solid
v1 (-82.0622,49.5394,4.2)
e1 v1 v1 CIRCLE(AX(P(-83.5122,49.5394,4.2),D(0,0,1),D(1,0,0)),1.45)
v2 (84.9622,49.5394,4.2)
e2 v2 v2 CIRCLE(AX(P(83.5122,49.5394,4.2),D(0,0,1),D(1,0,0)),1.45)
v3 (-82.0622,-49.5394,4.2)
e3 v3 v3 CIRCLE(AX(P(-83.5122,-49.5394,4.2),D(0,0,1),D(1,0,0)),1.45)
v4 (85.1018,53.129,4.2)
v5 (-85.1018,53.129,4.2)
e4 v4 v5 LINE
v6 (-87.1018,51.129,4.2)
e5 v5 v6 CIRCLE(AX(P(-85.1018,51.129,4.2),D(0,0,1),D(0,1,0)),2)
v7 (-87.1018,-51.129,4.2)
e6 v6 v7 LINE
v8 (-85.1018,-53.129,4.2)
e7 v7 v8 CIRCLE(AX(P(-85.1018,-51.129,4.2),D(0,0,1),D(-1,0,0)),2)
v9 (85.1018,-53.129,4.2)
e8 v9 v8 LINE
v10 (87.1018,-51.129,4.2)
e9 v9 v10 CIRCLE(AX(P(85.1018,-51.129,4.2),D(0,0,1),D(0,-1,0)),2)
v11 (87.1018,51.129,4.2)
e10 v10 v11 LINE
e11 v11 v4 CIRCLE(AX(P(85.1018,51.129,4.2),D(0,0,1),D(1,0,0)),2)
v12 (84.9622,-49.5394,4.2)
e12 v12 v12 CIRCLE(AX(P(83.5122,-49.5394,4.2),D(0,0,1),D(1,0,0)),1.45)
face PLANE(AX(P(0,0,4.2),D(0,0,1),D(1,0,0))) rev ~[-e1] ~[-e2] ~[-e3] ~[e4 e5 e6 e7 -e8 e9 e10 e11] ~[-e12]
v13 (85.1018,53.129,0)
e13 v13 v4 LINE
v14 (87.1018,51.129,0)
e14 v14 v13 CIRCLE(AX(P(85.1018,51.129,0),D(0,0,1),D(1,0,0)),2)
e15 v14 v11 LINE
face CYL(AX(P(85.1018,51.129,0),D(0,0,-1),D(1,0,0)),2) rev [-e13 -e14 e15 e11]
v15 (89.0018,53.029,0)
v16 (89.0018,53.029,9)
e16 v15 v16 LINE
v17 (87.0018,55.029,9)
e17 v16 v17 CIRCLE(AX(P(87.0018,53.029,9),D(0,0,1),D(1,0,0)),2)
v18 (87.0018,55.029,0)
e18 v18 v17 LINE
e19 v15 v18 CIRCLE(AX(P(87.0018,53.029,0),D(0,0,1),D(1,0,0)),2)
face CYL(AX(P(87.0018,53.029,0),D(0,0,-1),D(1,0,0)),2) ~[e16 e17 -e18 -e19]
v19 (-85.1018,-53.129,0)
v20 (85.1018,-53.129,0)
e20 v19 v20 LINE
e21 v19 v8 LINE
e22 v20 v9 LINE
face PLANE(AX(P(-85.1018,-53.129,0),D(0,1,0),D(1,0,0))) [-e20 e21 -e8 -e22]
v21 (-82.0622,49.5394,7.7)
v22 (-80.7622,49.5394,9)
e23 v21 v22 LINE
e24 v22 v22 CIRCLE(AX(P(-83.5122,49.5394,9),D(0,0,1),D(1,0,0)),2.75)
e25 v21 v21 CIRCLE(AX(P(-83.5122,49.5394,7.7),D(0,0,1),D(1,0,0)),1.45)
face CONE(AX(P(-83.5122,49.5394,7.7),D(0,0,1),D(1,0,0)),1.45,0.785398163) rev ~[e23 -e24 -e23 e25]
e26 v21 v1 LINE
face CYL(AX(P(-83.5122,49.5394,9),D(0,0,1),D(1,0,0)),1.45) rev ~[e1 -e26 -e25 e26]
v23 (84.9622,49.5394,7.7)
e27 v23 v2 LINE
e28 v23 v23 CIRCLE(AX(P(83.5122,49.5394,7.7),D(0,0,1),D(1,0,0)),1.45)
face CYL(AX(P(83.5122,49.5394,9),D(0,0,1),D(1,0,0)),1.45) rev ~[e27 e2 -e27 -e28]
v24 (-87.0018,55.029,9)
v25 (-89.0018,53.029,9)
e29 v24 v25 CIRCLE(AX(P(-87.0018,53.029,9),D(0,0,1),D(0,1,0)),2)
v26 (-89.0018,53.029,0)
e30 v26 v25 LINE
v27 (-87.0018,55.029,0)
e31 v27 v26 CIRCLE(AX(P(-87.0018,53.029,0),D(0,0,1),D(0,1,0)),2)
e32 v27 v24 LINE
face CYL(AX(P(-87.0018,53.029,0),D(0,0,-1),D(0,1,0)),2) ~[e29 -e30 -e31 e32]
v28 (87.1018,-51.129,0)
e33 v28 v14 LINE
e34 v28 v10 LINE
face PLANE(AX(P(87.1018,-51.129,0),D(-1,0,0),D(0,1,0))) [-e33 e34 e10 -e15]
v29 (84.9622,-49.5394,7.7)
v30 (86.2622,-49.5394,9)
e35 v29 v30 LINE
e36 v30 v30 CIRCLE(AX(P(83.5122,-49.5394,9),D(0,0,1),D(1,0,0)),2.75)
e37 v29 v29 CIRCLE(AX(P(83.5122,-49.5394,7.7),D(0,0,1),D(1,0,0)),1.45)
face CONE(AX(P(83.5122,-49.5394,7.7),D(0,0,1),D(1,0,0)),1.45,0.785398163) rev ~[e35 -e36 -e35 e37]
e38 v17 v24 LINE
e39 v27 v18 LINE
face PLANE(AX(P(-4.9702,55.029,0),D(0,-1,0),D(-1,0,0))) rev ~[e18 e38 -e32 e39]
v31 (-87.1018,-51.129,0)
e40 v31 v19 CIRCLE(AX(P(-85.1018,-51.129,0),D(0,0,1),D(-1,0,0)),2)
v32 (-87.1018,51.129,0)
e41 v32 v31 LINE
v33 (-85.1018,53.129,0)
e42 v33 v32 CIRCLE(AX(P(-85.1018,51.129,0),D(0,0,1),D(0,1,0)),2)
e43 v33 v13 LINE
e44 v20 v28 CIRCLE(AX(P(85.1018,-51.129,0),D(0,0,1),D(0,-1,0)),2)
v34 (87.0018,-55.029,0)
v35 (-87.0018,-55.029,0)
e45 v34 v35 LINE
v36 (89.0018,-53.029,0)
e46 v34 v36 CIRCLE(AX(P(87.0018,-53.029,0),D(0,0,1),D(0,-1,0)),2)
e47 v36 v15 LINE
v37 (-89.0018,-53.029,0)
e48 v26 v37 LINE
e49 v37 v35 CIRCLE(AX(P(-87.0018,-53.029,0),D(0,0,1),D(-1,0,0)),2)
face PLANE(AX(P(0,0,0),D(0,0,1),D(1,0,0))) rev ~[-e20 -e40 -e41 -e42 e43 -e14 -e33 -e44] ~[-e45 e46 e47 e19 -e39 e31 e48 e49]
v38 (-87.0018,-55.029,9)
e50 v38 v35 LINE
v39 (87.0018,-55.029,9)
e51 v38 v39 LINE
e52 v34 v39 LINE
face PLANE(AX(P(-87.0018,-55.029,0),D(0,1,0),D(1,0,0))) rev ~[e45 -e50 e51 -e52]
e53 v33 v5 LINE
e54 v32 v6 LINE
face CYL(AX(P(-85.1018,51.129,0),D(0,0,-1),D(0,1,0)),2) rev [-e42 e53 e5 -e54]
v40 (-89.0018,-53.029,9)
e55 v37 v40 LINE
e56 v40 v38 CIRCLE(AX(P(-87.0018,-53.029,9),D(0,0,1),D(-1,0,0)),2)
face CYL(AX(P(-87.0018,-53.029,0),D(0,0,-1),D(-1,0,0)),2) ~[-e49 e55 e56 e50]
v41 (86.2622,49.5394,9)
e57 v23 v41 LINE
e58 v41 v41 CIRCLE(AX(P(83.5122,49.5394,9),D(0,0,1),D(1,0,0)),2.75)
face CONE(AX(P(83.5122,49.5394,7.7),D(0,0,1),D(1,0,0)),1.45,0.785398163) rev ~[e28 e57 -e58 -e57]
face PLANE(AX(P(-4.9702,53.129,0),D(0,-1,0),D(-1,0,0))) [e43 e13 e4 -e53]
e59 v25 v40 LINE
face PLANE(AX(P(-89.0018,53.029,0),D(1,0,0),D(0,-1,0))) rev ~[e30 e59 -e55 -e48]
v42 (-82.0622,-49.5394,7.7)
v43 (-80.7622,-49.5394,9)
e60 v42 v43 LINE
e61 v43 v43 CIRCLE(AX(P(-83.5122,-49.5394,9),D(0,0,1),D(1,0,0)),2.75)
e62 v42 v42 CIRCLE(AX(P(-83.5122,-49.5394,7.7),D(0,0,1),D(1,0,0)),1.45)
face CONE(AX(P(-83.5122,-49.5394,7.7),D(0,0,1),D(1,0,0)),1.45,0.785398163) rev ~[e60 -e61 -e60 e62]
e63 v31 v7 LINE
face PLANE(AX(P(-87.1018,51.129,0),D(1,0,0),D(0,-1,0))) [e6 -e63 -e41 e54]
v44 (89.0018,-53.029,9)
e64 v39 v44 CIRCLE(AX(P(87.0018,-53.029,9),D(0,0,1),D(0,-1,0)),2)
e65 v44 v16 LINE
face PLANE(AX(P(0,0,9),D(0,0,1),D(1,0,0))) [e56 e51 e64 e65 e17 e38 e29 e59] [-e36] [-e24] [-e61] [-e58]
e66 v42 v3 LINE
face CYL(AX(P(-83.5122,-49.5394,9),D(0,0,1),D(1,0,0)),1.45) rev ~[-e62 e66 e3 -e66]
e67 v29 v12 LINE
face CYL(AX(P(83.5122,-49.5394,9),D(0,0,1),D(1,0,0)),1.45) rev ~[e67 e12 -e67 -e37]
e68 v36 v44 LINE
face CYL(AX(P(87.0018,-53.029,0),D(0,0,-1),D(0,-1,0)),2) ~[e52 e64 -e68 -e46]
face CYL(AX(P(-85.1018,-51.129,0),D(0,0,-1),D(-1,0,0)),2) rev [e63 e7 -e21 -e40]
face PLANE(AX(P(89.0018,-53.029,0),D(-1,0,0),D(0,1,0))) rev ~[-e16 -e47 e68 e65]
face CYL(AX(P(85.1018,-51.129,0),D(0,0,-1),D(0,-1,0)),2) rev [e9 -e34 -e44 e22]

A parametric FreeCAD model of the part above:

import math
import FreeCAD as App
import Part
import Sketcher


def edges_at(feature, points):
    """Names of the edges that pass closest to the given points."""
    edges = feature.Shape.Edges
    near = lambda p: min(range(len(edges)), key=lambda i: edges[i].distToShape(Part.Vertex(*p))[0])
    return sorted({f"Edge{near(p) + 1}" for p in points})

doc = App.newDocument("Part")
params = doc.addObject("Spreadsheet::Sheet", "Params")
for row, (alias, value) in enumerate([
    ("sketch1_radius", "2 mm"),
    ("pad1_length", "4.2 mm"),
    ("sketch2_radius", "2 mm"),
    ("pad2_length", "4.8 mm"),
    ("sketch3_diameter", "2.9 mm"),
    ("pocket1_length", "10 mm"),
    ("chamfer_size", "1.3 mm"),
], start=1):
    params.set(f"A{row}", alias)
    params.set(f"B{row}", "=" + value)
    params.setAlias(f"B{row}", alias)

body = doc.addObject("PartDesign::Body", "Body")

sketch1 = doc.addObject("Sketcher::SketchObject", "Sketch")
body.addObject(sketch1)
sketch1.AttachmentSupport = (doc.XY_Plane, [""])
sketch1.MapMode = "FlatFace"
sketch1.addGeometry([
    Part.LineSegment(App.Vector(-87, -55, 0), App.Vector(87, -55, 0)),
    Part.ArcOfCircle(Part.Circle(App.Vector(87, -53, 0), App.Vector(0, 0, 1), 2), math.radians(-90), math.radians(0)),
    Part.LineSegment(App.Vector(89, -53, 0), App.Vector(89, 53, 0)),
    Part.ArcOfCircle(Part.Circle(App.Vector(87, 53, 0), App.Vector(0, 0, 1), 2), math.radians(0), math.radians(90)),
    Part.LineSegment(App.Vector(87, 55, 0), App.Vector(-87, 55, 0)),
    Part.ArcOfCircle(Part.Circle(App.Vector(-87, 53, 0), App.Vector(0, 0, 1), 2), math.radians(90), math.radians(180)),
    Part.LineSegment(App.Vector(-89, 53, 0), App.Vector(-89, -53, 0)),
    Part.ArcOfCircle(Part.Circle(App.Vector(-87, -53, 0), App.Vector(0, 0, 1), 2), math.radians(180), math.radians(270)),
    Part.LineSegment(App.Vector(-85.1, 53.1, 0), App.Vector(85.1, 53.1, 0)),
    Part.ArcOfCircle(Part.Circle(App.Vector(85.1, 51.1, 0), App.Vector(0, 0, 1), 2), math.radians(0), math.radians(90)),
    Part.LineSegment(App.Vector(87.1, 51.1, 0), App.Vector(87.1, -51.1, 0)),
    Part.ArcOfCircle(Part.Circle(App.Vector(85.1, -51.1, 0), App.Vector(0, 0, 1), 2), math.radians(-90), math.radians(0)),
    Part.LineSegment(App.Vector(85.1, -53.1, 0), App.Vector(-85.1, -53.1, 0)),
    Part.ArcOfCircle(Part.Circle(App.Vector(-85.1, -51.1, 0), App.Vector(0, 0, 1), 2), math.radians(180), math.radians(270)),
    Part.LineSegment(App.Vector(-87.1, -51.1, 0), App.Vector(-87.1, 51.1, 0)),
    Part.ArcOfCircle(Part.Circle(App.Vector(-85.1, 51.1, 0), App.Vector(0, 0, 1), 2), math.radians(90), math.radians(180)),
], False)
sketch1.addConstraint([
    Sketcher.Constraint("Tangent", 0, 2, 1, 1),
    Sketcher.Constraint("Tangent", 1, 2, 2, 1),
    Sketcher.Constraint("Tangent", 2, 2, 3, 1),
    Sketcher.Constraint("Tangent", 3, 2, 4, 1),
    Sketcher.Constraint("Tangent", 4, 2, 5, 1),
    Sketcher.Constraint("Tangent", 5, 2, 6, 1),
    Sketcher.Constraint("Tangent", 6, 2, 7, 1),
    Sketcher.Constraint("Tangent", 7, 2, 0, 1),
    Sketcher.Constraint("Tangent", 8, 2, 9, 2),
    Sketcher.Constraint("Tangent", 9, 1, 10, 1),
    Sketcher.Constraint("Tangent", 10, 2, 11, 2),
    Sketcher.Constraint("Tangent", 11, 1, 12, 1),
    Sketcher.Constraint("Tangent", 12, 2, 13, 2),
    Sketcher.Constraint("Tangent", 13, 1, 14, 1),
    Sketcher.Constraint("Tangent", 14, 2, 15, 2),
    Sketcher.Constraint("Tangent", 15, 1, 8, 1),
    Sketcher.Constraint("Horizontal", 0),
    Sketcher.Constraint("Vertical", 2),
    Sketcher.Constraint("Horizontal", 4),
    Sketcher.Constraint("Vertical", 6),
    Sketcher.Constraint("Horizontal", 8),
    Sketcher.Constraint("Vertical", 10),
    Sketcher.Constraint("Horizontal", 12),
    Sketcher.Constraint("Vertical", 14),
    Sketcher.Constraint("Equal", 1, 3),
    Sketcher.Constraint("Equal", 3, 5),
    Sketcher.Constraint("Equal", 5, 7),
    Sketcher.Constraint("Equal", 7, 9),
    Sketcher.Constraint("Equal", 9, 11),
    Sketcher.Constraint("Equal", 11, 13),
    Sketcher.Constraint("Equal", 13, 15),
    Sketcher.Constraint("Symmetric", 1, 3, 5, 3, -1, 1),
    Sketcher.Constraint("Symmetric", 9, 3, 13, 3, -1, 1),
    Sketcher.Constraint("Radius", 1, 2.0),
    Sketcher.Constraint("DistanceY", 3, 3, 8, 2, 0.1),
    Sketcher.Constraint("DistanceX", 3, 3, 9, 1, 0.1),
    Sketcher.Constraint("DistanceY", 2, 1, 2, 2, 106.058),
    Sketcher.Constraint("DistanceX", 0, 1, 0, 2, 174.0036),
])
sketch1.setExpression("Constraints[33]", "Params.sketch1_radius")
pad1 = doc.addObject("PartDesign::Pad", "Pad")
body.addObject(pad1)
pad1.Profile = sketch1
pad1.setExpression("Length", "Params.pad1_length")

sketch2 = doc.addObject("Sketcher::SketchObject", "Sketch001")
body.addObject(sketch2)
sketch2.AttachmentSupport = (doc.XY_Plane, [""])
sketch2.MapMode = "FlatFace"
sketch2.AttachmentOffset = App.Placement(App.Vector(0, 0, 4.2), App.Rotation())
sketch2.addGeometry([
    Part.ArcOfCircle(Part.Circle(App.Vector(-87, -53, 0), App.Vector(0, 0, 1), 2), math.radians(180), math.radians(270)),
    Part.LineSegment(App.Vector(-87, -55, 0), App.Vector(87, -55, 0)),
    Part.ArcOfCircle(Part.Circle(App.Vector(87, -53, 0), App.Vector(0, 0, 1), 2), math.radians(-90), math.radians(0)),
    Part.LineSegment(App.Vector(89, -53, 0), App.Vector(89, 53, 0)),
    Part.ArcOfCircle(Part.Circle(App.Vector(87, 53, 0), App.Vector(0, 0, 1), 2), math.radians(0), math.radians(90)),
    Part.LineSegment(App.Vector(87, 55, 0), App.Vector(-87, 55, 0)),
    Part.ArcOfCircle(Part.Circle(App.Vector(-87, 53, 0), App.Vector(0, 0, 1), 2), math.radians(90), math.radians(180)),
    Part.LineSegment(App.Vector(-89, 53, 0), App.Vector(-89, -53, 0)),
], False)
sketch2.addConstraint([
    Sketcher.Constraint("Tangent", 0, 2, 1, 1),
    Sketcher.Constraint("Tangent", 1, 2, 2, 1),
    Sketcher.Constraint("Tangent", 2, 2, 3, 1),
    Sketcher.Constraint("Tangent", 3, 2, 4, 1),
    Sketcher.Constraint("Tangent", 4, 2, 5, 1),
    Sketcher.Constraint("Tangent", 5, 2, 6, 1),
    Sketcher.Constraint("Tangent", 6, 2, 7, 1),
    Sketcher.Constraint("Tangent", 7, 2, 0, 1),
    Sketcher.Constraint("Horizontal", 1),
    Sketcher.Constraint("Vertical", 3),
    Sketcher.Constraint("Horizontal", 5),
    Sketcher.Constraint("Vertical", 7),
    Sketcher.Constraint("Equal", 0, 2),
    Sketcher.Constraint("Equal", 2, 4),
    Sketcher.Constraint("Equal", 4, 6),
    Sketcher.Constraint("Symmetric", 0, 3, 4, 3, -1, 1),
    Sketcher.Constraint("Radius", 0, 2.0),
    Sketcher.Constraint("DistanceY", 3, 1, 3, 2, 106.058),
    Sketcher.Constraint("DistanceX", 1, 1, 1, 2, 174.0036),
])
sketch2.setExpression("Constraints[16]", "Params.sketch2_radius")
pad2 = doc.addObject("PartDesign::Pad", "Pad001")
body.addObject(pad2)
pad2.Profile = sketch2
pad2.setExpression("Length", "Params.pad2_length")

sketch3 = doc.addObject("Sketcher::SketchObject", "Sketch002")
body.addObject(sketch3)
sketch3.AttachmentSupport = (doc.XY_Plane, [""])
sketch3.MapMode = "FlatFace"
sketch3.AttachmentOffset = App.Placement(App.Vector(0, 0, 9), App.Rotation())
sketch3.addGeometry([
    Part.Circle(App.Vector(83.5, 49.5, 0), App.Vector(0, 0, 1), 1.4),
    Part.Circle(App.Vector(83.5, -49.5, 0), App.Vector(0, 0, 1), 1.4),
    Part.Circle(App.Vector(-83.5, -49.5, 0), App.Vector(0, 0, 1), 1.4),
    Part.Circle(App.Vector(-83.5, 49.5, 0), App.Vector(0, 0, 1), 1.4),
], False)
sketch3.addConstraint([
    Sketcher.Constraint("Equal", 0, 1),
    Sketcher.Constraint("Equal", 1, 2),
    Sketcher.Constraint("Equal", 2, 3),
    Sketcher.Constraint("Symmetric", 0, 3, 2, 3, -1, 1),
    Sketcher.Constraint("Symmetric", 1, 3, 3, 3, -1, 1),
    Sketcher.Constraint("Symmetric", 1, 3, 2, 3, -2),
    Sketcher.Constraint("Diameter", 0, 2.9),
    Sketcher.Constraint("DistanceX", -1, 1, 0, 3, 83.5122),
    Sketcher.Constraint("DistanceY", -1, 1, 0, 3, 49.5394),
])
sketch3.setExpression("Constraints[6]", "Params.sketch3_diameter")
pocket1 = doc.addObject("PartDesign::Pocket", "Pocket")
body.addObject(pocket1)
pocket1.Profile = sketch3
pocket1.setExpression("Length", "Params.pocket1_length")
doc.recompute()

chamfer = doc.addObject("PartDesign::Chamfer", "Chamfer")
body.addObject(chamfer)
chamfer.Base = (pocket1, edges_at(pocket1, [
    (82.062, 49.539, 9),
    (82.062, -49.539, 9),
    (-84.962, 49.539, 9),
    (-84.962, -49.539, 9),
]))
chamfer.setExpression("Size", "Params.chamfer_size")

doc.recompute()
